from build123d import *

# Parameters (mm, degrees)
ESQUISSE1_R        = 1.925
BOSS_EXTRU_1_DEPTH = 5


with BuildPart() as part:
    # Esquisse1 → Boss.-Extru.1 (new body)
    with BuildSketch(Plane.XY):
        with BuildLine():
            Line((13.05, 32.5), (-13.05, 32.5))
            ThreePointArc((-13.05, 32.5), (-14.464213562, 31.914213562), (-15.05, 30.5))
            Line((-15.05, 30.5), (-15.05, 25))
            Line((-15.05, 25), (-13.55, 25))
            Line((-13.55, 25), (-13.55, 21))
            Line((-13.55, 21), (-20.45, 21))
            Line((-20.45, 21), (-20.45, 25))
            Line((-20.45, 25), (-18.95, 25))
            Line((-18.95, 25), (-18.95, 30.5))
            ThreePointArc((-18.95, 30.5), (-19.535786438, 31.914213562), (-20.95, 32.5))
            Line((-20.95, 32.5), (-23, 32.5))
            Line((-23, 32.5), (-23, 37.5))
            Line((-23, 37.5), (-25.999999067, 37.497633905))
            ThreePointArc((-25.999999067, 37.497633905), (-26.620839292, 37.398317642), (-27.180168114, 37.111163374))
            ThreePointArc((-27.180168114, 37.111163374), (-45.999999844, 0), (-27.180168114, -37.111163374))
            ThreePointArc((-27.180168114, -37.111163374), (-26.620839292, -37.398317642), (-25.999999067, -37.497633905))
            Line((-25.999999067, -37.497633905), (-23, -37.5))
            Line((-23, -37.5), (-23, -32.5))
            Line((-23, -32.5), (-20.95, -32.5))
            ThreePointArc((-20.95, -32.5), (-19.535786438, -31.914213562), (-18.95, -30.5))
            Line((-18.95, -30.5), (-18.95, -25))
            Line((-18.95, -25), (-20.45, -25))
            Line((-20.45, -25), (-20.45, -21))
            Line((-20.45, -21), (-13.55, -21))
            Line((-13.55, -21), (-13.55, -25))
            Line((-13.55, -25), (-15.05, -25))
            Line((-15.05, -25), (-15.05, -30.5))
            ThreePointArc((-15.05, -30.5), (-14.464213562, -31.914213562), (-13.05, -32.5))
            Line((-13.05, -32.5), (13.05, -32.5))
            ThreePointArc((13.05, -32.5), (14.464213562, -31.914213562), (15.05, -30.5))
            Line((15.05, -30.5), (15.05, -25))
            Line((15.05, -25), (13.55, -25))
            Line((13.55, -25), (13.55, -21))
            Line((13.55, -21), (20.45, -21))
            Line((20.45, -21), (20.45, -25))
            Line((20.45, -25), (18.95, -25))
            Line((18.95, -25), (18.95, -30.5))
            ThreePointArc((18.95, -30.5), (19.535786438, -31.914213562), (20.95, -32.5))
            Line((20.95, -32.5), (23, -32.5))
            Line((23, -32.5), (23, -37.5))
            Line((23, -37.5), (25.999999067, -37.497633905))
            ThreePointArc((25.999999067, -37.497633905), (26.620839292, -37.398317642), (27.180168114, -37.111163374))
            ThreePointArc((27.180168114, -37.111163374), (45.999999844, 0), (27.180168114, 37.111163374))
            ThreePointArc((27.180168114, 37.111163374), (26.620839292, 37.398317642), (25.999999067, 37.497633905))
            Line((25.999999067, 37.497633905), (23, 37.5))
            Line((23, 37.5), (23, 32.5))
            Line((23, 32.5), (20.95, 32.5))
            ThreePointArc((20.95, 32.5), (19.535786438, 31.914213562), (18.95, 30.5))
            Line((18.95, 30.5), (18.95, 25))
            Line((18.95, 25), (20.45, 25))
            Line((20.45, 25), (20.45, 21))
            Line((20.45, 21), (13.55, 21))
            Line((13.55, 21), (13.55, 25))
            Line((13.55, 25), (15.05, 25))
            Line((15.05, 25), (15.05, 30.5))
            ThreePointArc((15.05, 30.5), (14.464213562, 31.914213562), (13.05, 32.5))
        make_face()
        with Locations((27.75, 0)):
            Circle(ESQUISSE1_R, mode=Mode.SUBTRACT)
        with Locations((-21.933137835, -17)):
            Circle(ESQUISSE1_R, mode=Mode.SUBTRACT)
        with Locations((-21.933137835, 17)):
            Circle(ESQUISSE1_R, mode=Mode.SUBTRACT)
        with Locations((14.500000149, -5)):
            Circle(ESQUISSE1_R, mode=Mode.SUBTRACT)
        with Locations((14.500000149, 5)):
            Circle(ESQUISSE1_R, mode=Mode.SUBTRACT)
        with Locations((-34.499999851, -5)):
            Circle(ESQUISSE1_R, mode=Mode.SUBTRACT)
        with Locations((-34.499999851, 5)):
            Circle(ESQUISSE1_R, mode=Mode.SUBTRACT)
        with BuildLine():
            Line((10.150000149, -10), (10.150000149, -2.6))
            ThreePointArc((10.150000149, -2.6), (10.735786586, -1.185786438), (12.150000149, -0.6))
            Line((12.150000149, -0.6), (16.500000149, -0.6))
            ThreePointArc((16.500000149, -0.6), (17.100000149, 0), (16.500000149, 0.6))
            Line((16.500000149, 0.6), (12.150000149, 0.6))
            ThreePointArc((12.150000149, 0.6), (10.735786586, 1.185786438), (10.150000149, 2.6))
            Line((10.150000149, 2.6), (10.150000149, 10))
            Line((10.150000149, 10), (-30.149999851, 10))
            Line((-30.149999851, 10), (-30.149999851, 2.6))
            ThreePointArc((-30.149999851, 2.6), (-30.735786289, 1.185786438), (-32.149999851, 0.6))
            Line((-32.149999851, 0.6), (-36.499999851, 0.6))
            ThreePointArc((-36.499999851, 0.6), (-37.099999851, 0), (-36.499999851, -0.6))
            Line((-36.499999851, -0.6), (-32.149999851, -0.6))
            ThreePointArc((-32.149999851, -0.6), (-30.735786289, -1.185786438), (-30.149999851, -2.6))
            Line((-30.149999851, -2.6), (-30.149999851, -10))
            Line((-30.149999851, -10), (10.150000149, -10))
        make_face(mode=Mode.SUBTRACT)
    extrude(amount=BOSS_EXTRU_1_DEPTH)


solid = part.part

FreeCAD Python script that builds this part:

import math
import FreeCAD as App
import Part
import Sketcher

V = App.Vector

doc = App.newDocument("Part")
body = doc.addObject("PartDesign::Body", "Body")

# Sketch on XY plane
sketch1 = body.newObject("Sketcher::SketchObject", "Sketch")
sketch1.AttachmentSupport = (doc.getObject("XY_Plane"), [""])
sketch1.MapMode = "FlatFace"
sketch1.addGeometry([
    Part.LineSegment(V(13.1, 32.5, 0), V(-13.1, 32.5, 0)),  # 0
    Part.ArcOfCircle(Part.Circle(V(-13, 30.5, 0), V(0, 0, 1), 2), math.radians(90), math.radians(180)),  # 1
    Part.LineSegment(V(-15.1, 30.5, 0), V(-15.1, 25, 0)),  # 2
    Part.LineSegment(V(-15.1, 25, 0), V(-13.6, 25, 0)),  # 3
    Part.LineSegment(V(-13.6, 25, 0), V(-13.6, 21, 0)),  # 4
    Part.LineSegment(V(-13.6, 21, 0), V(-20.4, 21, 0)),  # 5
    Part.LineSegment(V(-20.4, 21, 0), V(-20.4, 25, 0)),  # 6
    Part.LineSegment(V(-20.4, 25, 0), V(-18.9, 25, 0)),  # 7
    Part.LineSegment(V(-18.9, 25, 0), V(-18.9, 30.5, 0)),  # 8
    Part.ArcOfCircle(Part.Circle(V(-21, 30.5, 0), V(0, 0, 1), 2), math.radians(0), math.radians(90)),  # 9
    Part.LineSegment(V(-20.9, 32.5, 0), V(-23, 32.5, 0)),  # 10
    Part.LineSegment(V(-23, 32.5, 0), V(-23, 37.5, 0)),  # 11
    Part.LineSegment(V(-23, 37.5, 0), V(-26, 37.5, 0)),  # 12
    Part.ArcOfCircle(Part.Circle(V(-26, 35.5, 0), V(0, 0, 1), 2), math.radians(90), math.radians(126)),  # 13
    Part.ArcOfCircle(Part.Circle(V(0, 0, 0), V(0, 0, 1), 46), math.radians(126), math.radians(234)),  # 14
    Part.ArcOfCircle(Part.Circle(V(-26, -35.5, 0), V(0, 0, 1), 2), math.radians(-126), math.radians(-90)),  # 15
    Part.LineSegment(V(-26, -37.5, 0), V(-23, -37.5, 0)),  # 16
    Part.LineSegment(V(-23, -37.5, 0), V(-23, -32.5, 0)),  # 17
    Part.LineSegment(V(-23, -32.5, 0), V(-20.9, -32.5, 0)),  # 18
    Part.ArcOfCircle(Part.Circle(V(-21, -30.5, 0), V(0, 0, 1), 2), math.radians(-90), math.radians(0)),  # 19
    Part.LineSegment(V(-18.9, -30.5, 0), V(-18.9, -25, 0)),  # 20
    Part.LineSegment(V(-18.9, -25, 0), V(-20.4, -25, 0)),  # 21
    Part.LineSegment(V(-20.4, -25, 0), V(-20.4, -21, 0)),  # 22
    Part.LineSegment(V(-20.4, -21, 0), V(-13.6, -21, 0)),  # 23
    Part.LineSegment(V(-13.6, -21, 0), V(-13.6, -25, 0)),  # 24
    Part.LineSegment(V(-13.6, -25, 0), V(-15.1, -25, 0)),  # 25
    Part.LineSegment(V(-15.1, -25, 0), V(-15.1, -30.5, 0)),  # 26
    Part.ArcOfCircle(Part.Circle(V(-13, -30.5, 0), V(0, 0, 1), 2), math.radians(-180), math.radians(-90)),  # 27
    Part.LineSegment(V(-13.1, -32.5, 0), V(13.1, -32.5, 0)),  # 28
    Part.ArcOfCircle(Part.Circle(V(13, -30.5, 0), V(0, 0, 1), 2), math.radians(-90), math.radians(0)),  # 29
    Part.LineSegment(V(15.1, -30.5, 0), V(15.1, -25, 0)),  # 30
    Part.LineSegment(V(15.1, -25, 0), V(13.6, -25, 0)),  # 31
    Part.LineSegment(V(13.6, -25, 0), V(13.6, -21, 0)),  # 32
    Part.LineSegment(V(13.6, -21, 0), V(20.4, -21, 0)),  # 33
    Part.LineSegment(V(20.4, -21, 0), V(20.4, -25, 0)),  # 34
    Part.LineSegment(V(20.4, -25, 0), V(18.9, -25, 0)),  # 35
    Part.LineSegment(V(18.9, -25, 0), V(18.9, -30.5, 0)),  # 36
    Part.ArcOfCircle(Part.Circle(V(21, -30.5, 0), V(0, 0, 1), 2), math.radians(-180), math.radians(-90)),  # 37
    Part.LineSegment(V(20.9, -32.5, 0), V(23, -32.5, 0)),  # 38
    Part.LineSegment(V(23, -32.5, 0), V(23, -37.5, 0)),  # 39
    Part.LineSegment(V(23, -37.5, 0), V(26, -37.5, 0)),  # 40
    Part.ArcOfCircle(Part.Circle(V(26, -35.5, 0), V(0, 0, 1), 2), math.radians(-90), math.radians(-54)),  # 41
    Part.ArcOfCircle(Part.Circle(V(0, 0, 0), V(0, 0, 1), 46), math.radians(-54), math.radians(54)),  # 42
    Part.ArcOfCircle(Part.Circle(V(26, 35.5, 0), V(0, 0, 1), 2), math.radians(54), math.radians(90)),  # 43
    Part.LineSegment(V(26, 37.5, 0), V(23, 37.5, 0)),  # 44
    Part.LineSegment(V(23, 37.5, 0), V(23, 32.5, 0)),  # 45
    Part.LineSegment(V(23, 32.5, 0), V(20.9, 32.5, 0)),  # 46
    Part.ArcOfCircle(Part.Circle(V(21, 30.5, 0), V(0, 0, 1), 2), math.radians(90), math.radians(180)),  # 47
    Part.LineSegment(V(18.9, 30.5, 0), V(18.9, 25, 0)),  # 48
    Part.LineSegment(V(18.9, 25, 0), V(20.4, 25, 0)),  # 49
    Part.LineSegment(V(20.4, 25, 0), V(20.4, 21, 0)),  # 50
    Part.LineSegment(V(20.4, 21, 0), V(13.6, 21, 0)),  # 51
    Part.LineSegment(V(13.6, 21, 0), V(13.6, 25, 0)),  # 52
    Part.LineSegment(V(13.6, 25, 0), V(15.1, 25, 0)),  # 53
    Part.LineSegment(V(15.1, 25, 0), V(15.1, 30.5, 0)),  # 54
    Part.ArcOfCircle(Part.Circle(V(13, 30.5, 0), V(0, 0, 1), 2), math.radians(0), math.radians(90)),  # 55
    Part.Circle(V(-21.9, -17, 0), V(0, 0, 1), 1.9),  # 56
    Part.Circle(V(-34.5, -5, 0), V(0, 0, 1), 1.9),  # 57
    Part.Circle(V(14.5, -5, 0), V(0, 0, 1), 1.9),  # 58
    Part.Circle(V(-34.5, 5, 0), V(0, 0, 1), 1.9),  # 59
    Part.LineSegment(V(10.2, -2.6, 0), V(10.2, -10, 0)),  # 60
    Part.LineSegment(V(10.2, -10, 0), V(-30.1, -10, 0)),  # 61
    Part.LineSegment(V(-30.1, -10, 0), V(-30.1, -2.6, 0)),  # 62
    Part.ArcOfCircle(Part.Circle(V(-32.1, -2.6, 0), V(0, 0, 1), 2), math.radians(0), math.radians(90)),  # 63
    Part.LineSegment(V(-32.1, -0.6, 0), V(-36.5, -0.6, 0)),  # 64
    Part.ArcOfCircle(Part.Circle(V(-36.5, 0, 0), V(0, 0, 1), 0.6), math.radians(90), math.radians(270)),  # 65
    Part.LineSegment(V(-36.5, 0.6, 0), V(-32.1, 0.6, 0)),  # 66
    Part.ArcOfCircle(Part.Circle(V(-32.1, 2.6, 0), V(0, 0, 1), 2), math.radians(-90), math.radians(0)),  # 67
    Part.LineSegment(V(-30.1, 2.6, 0), V(-30.1, 10, 0)),  # 68
    Part.LineSegment(V(-30.1, 10, 0), V(10.2, 10, 0)),  # 69
    Part.LineSegment(V(10.2, 10, 0), V(10.2, 2.6, 0)),  # 70
    Part.ArcOfCircle(Part.Circle(V(12.2, 2.6, 0), V(0, 0, 1), 2), math.radians(180), math.radians(270)),  # 71
    Part.LineSegment(V(12.2, 0.6, 0), V(16.5, 0.6, 0)),  # 72
    Part.ArcOfCircle(Part.Circle(V(16.5, 0, 0), V(0, 0, 1), 0.6), math.radians(-90), math.radians(90)),  # 73
    Part.LineSegment(V(16.5, -0.6, 0), V(12.2, -0.6, 0)),  # 74
    Part.ArcOfCircle(Part.Circle(V(12.2, -2.6, 0), V(0, 0, 1), 2), math.radians(90), math.radians(180)),  # 75
    Part.Circle(V(-21.9, 17, 0), V(0, 0, 1), 1.9),  # 76
    Part.Circle(V(27.8, 0, 0), V(0, 0, 1), 1.9),  # 77
    Part.Circle(V(14.5, 5, 0), V(0, 0, 1), 1.9),  # 78
], False)
sketch1.addConstraint([
    Sketcher.Constraint("Tangent", 0, 2, 1, 1),
    Sketcher.Constraint("Tangent", 1, 2, 2, 1),
    Sketcher.Constraint("Coincident", 2, 2, 3, 1),
    Sketcher.Constraint("Coincident", 3, 2, 4, 1),
    Sketcher.Constraint("Coincident", 4, 2, 5, 1),
    Sketcher.Constraint("Coincident", 5, 2, 6, 1),
    Sketcher.Constraint("Coincident", 6, 2, 7, 1),
    Sketcher.Constraint("Coincident", 7, 2, 8, 1),
    Sketcher.Constraint("Tangent", 8, 2, 9, 1),
    Sketcher.Constraint("Tangent", 9, 2, 10, 1),
    Sketcher.Constraint("Coincident", 10, 2, 11, 1),
    Sketcher.Constraint("Coincident", 11, 2, 12, 1),
    Sketcher.Constraint("Tangent", 12, 2, 13, 1),
    Sketcher.Constraint("Tangent", 13, 2, 14, 1),
    Sketcher.Constraint("Tangent", 14, 2, 15, 1),
    Sketcher.Constraint("Tangent", 15, 2, 16, 1),
    Sketcher.Constraint("Coincident", 16, 2, 17, 1),
    Sketcher.Constraint("Coincident", 17, 2, 18, 1),
    Sketcher.Constraint("Tangent", 18, 2, 19, 1),
    Sketcher.Constraint("Tangent", 19, 2, 20, 1),
    Sketcher.Constraint("Coincident", 20, 2, 21, 1),
    Sketcher.Constraint("Coincident", 21, 2, 22, 1),
    Sketcher.Constraint("Coincident", 22, 2, 23, 1),
    Sketcher.Constraint("Coincident", 23, 2, 24, 1),
    Sketcher.Constraint("Coincident", 24, 2, 25, 1),
    Sketcher.Constraint("Coincident", 25, 2, 26, 1),
    Sketcher.Constraint("Tangent", 26, 2, 27, 1),
    Sketcher.Constraint("Tangent", 27, 2, 28, 1),
    Sketcher.Constraint("Tangent", 28, 2, 29, 1),
    Sketcher.Constraint("Tangent", 29, 2, 30, 1),
    Sketcher.Constraint("Coincident", 30, 2, 31, 1),
    Sketcher.Constraint("Coincident", 31, 2, 32, 1),
    Sketcher.Constraint("Coincident", 32, 2, 33, 1),
    Sketcher.Constraint("Coincident", 33, 2, 34, 1),
    Sketcher.Constraint("Coincident", 34, 2, 35, 1),
    Sketcher.Constraint("Coincident", 35, 2, 36, 1),
    Sketcher.Constraint("Tangent", 36, 2, 37, 1),
    Sketcher.Constraint("Tangent", 37, 2, 38, 1),
    Sketcher.Constraint("Coincident", 38, 2, 39, 1),
    Sketcher.Constraint("Coincident", 39, 2, 40, 1),
    Sketcher.Constraint("Tangent", 40, 2, 41, 1),
    Sketcher.Constraint("Tangent", 41, 2, 42, 1),
    Sketcher.Constraint("Tangent", 42, 2, 43, 1),
    Sketcher.Constraint("Tangent", 43, 2, 44, 1),
    Sketcher.Constraint("Coincident", 44, 2, 45, 1),
    Sketcher.Constraint("Coincident", 45, 2, 46, 1),
    Sketcher.Constraint("Tangent", 46, 2, 47, 1),
    Sketcher.Constraint("Tangent", 47, 2, 48, 1),
    Sketcher.Constraint("Coincident", 48, 2, 49, 1),
    Sketcher.Constraint("Coincident", 49, 2, 50, 1),
    Sketcher.Constraint("Coincident", 50, 2, 51, 1),
    Sketcher.Constraint("Coincident", 51, 2, 52, 1),
    Sketcher.Constraint("Coincident", 52, 2, 53, 1),
    Sketcher.Constraint("Coincident", 53, 2, 54, 1),
    Sketcher.Constraint("Tangent", 54, 2, 55, 1),
    Sketcher.Constraint("Tangent", 55, 2, 0, 1),
    Sketcher.Constraint("Coincident", 60, 2, 61, 1),
    Sketcher.Constraint("Coincident", 61, 2, 62, 1),
    Sketcher.Constraint("Tangent", 62, 2, 63, 1),
    Sketcher.Constraint("Tangent", 63, 2, 64, 1),
    Sketcher.Constraint("Tangent", 64, 2, 65, 2),
    Sketcher.Constraint("Tangent", 65, 1, 66, 1),
    Sketcher.Constraint("Tangent", 66, 2, 67, 1),
    Sketcher.Constraint("Tangent", 67, 2, 68, 1),
    Sketcher.Constraint("Coincident", 68, 2, 69, 1),
    Sketcher.Constraint("Coincident", 69, 2, 70, 1),
    Sketcher.Constraint("Tangent", 70, 2, 71, 1),
    Sketcher.Constraint("Tangent", 71, 2, 72, 1),
    Sketcher.Constraint("Tangent", 72, 2, 73, 2),
    Sketcher.Constraint("Tangent", 73, 1, 74, 1),
    Sketcher.Constraint("Tangent", 74, 2, 75, 1),
    Sketcher.Constraint("Tangent", 75, 2, 60, 1),
    Sketcher.Constraint("Horizontal", 0),
    Sketcher.Constraint("Vertical", 2),
    Sketcher.Constraint("Horizontal", 3),
    Sketcher.Constraint("Vertical", 4),
    Sketcher.Constraint("Horizontal", 5),
    Sketcher.Constraint("Vertical", 6),
    Sketcher.Constraint("Horizontal", 7),
    Sketcher.Constraint("Vertical", 8),
    Sketcher.Constraint("Horizontal", 10),
    Sketcher.Constraint("Vertical", 11),
    Sketcher.Constraint("Vertical", 17),
    Sketcher.Constraint("Horizontal", 18),
    Sketcher.Constraint("Vertical", 20),
    Sketcher.Constraint("Horizontal", 21),
    Sketcher.Constraint("Vertical", 22),
    Sketcher.Constraint("Horizontal", 23),
    Sketcher.Constraint("Vertical", 24),
    Sketcher.Constraint("Horizontal", 25),
    Sketcher.Constraint("Vertical", 26),
    Sketcher.Constraint("Horizontal", 28),
    Sketcher.Constraint("Vertical", 30),
    Sketcher.Constraint("Horizontal", 31),
    Sketcher.Constraint("Vertical", 32),
    Sketcher.Constraint("Horizontal", 33),
    Sketcher.Constraint("Vertical", 34),
    Sketcher.Constraint("Horizontal", 35),
    Sketcher.Constraint("Vertical", 36),
    Sketcher.Constraint("Horizontal", 38),
    Sketcher.Constraint("Vertical", 39),
    Sketcher.Constraint("Vertical", 45),
    Sketcher.Constraint("Horizontal", 46),
    Sketcher.Constraint("Vertical", 48),
    Sketcher.Constraint("Horizontal", 49),
    Sketcher.Constraint("Vertical", 50),
    Sketcher.Constraint("Horizontal", 51),
    Sketcher.Constraint("Vertical", 52),
    Sketcher.Constraint("Horizontal", 53),
    Sketcher.Constraint("Vertical", 54),
    Sketcher.Constraint("Vertical", 60),
    Sketcher.Constraint("Horizontal", 61),
    Sketcher.Constraint("Vertical", 62),
    Sketcher.Constraint("Horizontal", 64),
    Sketcher.Constraint("Horizontal", 66),
    Sketcher.Constraint("Vertical", 68),
    Sketcher.Constraint("Horizontal", 69),
    Sketcher.Constraint("Vertical", 70),
    Sketcher.Constraint("Horizontal", 72),
    Sketcher.Constraint("Horizontal", 74),
    Sketcher.Constraint("Coincident", 14, 3, -1, 1),
    Sketcher.Constraint("Coincident", 42, 3, -1, 1),
    Sketcher.Constraint("Equal", 1, 9),
    Sketcher.Constraint("Equal", 9, 13),
    Sketcher.Constraint("Equal", 13, 15),
    Sketcher.Constraint("Equal", 15, 19),
    Sketcher.Constraint("Equal", 19, 27),
    Sketcher.Constraint("Equal", 27, 29),
    Sketcher.Constraint("Equal", 29, 37),
    Sketcher.Constraint("Equal", 37, 41),
    Sketcher.Constraint("Equal", 14, 42),
    Sketcher.Constraint("Equal", 41, 43),
    Sketcher.Constraint("Equal", 43, 47),
    Sketcher.Constraint("Equal", 47, 55),
    Sketcher.Constraint("Equal", 56, 57),
    Sketcher.Constraint("Equal", 57, 58),
    Sketcher.Constraint("Equal", 58, 59),
    Sketcher.Constraint("Equal", 55, 63),
    Sketcher.Constraint("Equal", 63, 67),
    Sketcher.Constraint("Equal", 67, 71),
    Sketcher.Constraint("Equal", 65, 73),
    Sketcher.Constraint("Equal", 71, 75),
    Sketcher.Constraint("Equal", 59, 76),
    Sketcher.Constraint("Equal", 76, 77),
    Sketcher.Constraint("Equal", 77, 78),
    Sketcher.Constraint("Symmetric", 1, 3, 29, 3, -1, 1),
    Sketcher.Constraint("Symmetric", 9, 3, 37, 3, -1, 1),
    Sketcher.Constraint("Symmetric", 19, 3, 47, 3, -1, 1),
    Sketcher.Constraint("Symmetric", 3, 2, 31, 2, -1, 1),
    Sketcher.Constraint("Symmetric", 5, 2, 33, 2, -1, 1),
    Sketcher.Constraint("Symmetric", 11, 2, 39, 2, -1, 1),
    Sketcher.Constraint("Symmetric", 15, 2, 43, 2, -1, 1),
    Sketcher.Constraint("Symmetric", 21, 2, 49, 2, -1, 1),
    Sketcher.Constraint("Symmetric", 23, 2, 51, 2, -1, 1),
    Sketcher.Constraint("Symmetric", 25, 2, 53, 2, -1, 1),
    Sketcher.Constraint("Symmetric", 19, 3, 37, 3, -2),
    Sketcher.Constraint("Symmetric", 25, 2, 30, 2, -2),
    Sketcher.Constraint("Symmetric", 23, 2, 32, 2, -2),
    Sketcher.Constraint("Symmetric", 21, 2, 34, 2, -2),
    Sketcher.Constraint("Symmetric", 16, 2, 39, 2, -2),
    Sketcher.Constraint("Symmetric", 57, 3, 59, 3, -1),
    Sketcher.Constraint("Symmetric", 63, 3, 67, 3, -1),
    Sketcher.Constraint("Symmetric", 71, 3, 75, 3, -1),
    Sketcher.Constraint("Symmetric", 56, 3, 76, 3, -1),
    Sketcher.Constraint("Symmetric", 58, 3, 78, 3, -1),
    Sketcher.Constraint("PointOnObject", 77, 3, -1),
    Sketcher.Constraint("Parallel", 12, 40),
    Sketcher.Constraint("Horizontal", 1, 3, 9, 3),
    Sketcher.Constraint("Horizontal", 15, 3, 41, 3),
    Sketcher.Constraint("Horizontal", 57, 3, 58, 3),
    Sketcher.Constraint("Horizontal", 3, 2, 6, 2),
    Sketcher.Constraint("Horizontal", 21, 2, 24, 2),
    Sketcher.Constraint("Vertical", 39, 2, 44, 2),
    Sketcher.Constraint("Equal", 3, 7),
    Sketcher.Constraint("Equal", 66, 72),
    Sketcher.Constraint("Equal", 62, 68),
    Sketcher.Constraint("Radius", 1, 2.0),
    Sketcher.Constraint("Radius", 14, 46.0),
    Sketcher.Constraint("Radius", 65, 0.6),
    Sketcher.Constraint("Diameter", 56, 3.85),
    Sketcher.Constraint("DistanceY", 4, 2, 4, 1, 4.0),
    Sketcher.Constraint("DistanceY", 11, 1, 11, 2, 5.0),
    Sketcher.Constraint("Distance", 12, 3.0),
    Sketcher.Constraint("DistanceX", 0, 2, 0, 1, 26.1),
    Sketcher.Constraint("DistanceX", 3, 1, 3, 2, 1.5),
    Sketcher.Constraint("DistanceX", 5, 2, 5, 1, 6.9),
    Sketcher.Constraint("DistanceX", 61, 2, 61, 1, 40.3),
    Sketcher.Constraint("DistanceY", 2, 2, 2, 1, 5.5),
    Sketcher.Constraint("DistanceY", 60, 2, 60, 1, 7.4),
    Sketcher.Constraint("DistanceY", 56, 3, -1, 1, 17.0),
    Sketcher.Constraint("DistanceY", 57, 3, -1, 1, 5.0),
    Sketcher.Constraint("DistanceY", -1, 1, 2, 2, 25.0),
    Sketcher.Constraint("DistanceX", 10, 2, -1, 1, 23.0),
    Sketcher.Constraint("DistanceX", 64, 2, 64, 1, 4.35),
    Sketcher.Constraint("DistanceX", 57, 3, -1, 1, 34.5),
    Sketcher.Constraint("DistanceX", -1, 1, 58, 3, 14.5),
    Sketcher.Constraint("DistanceX", 65, 3, -1, 1, 36.5),
    Sketcher.Constraint("DistanceX", -1, 1, 77, 3, 27.75),
    Sketcher.Constraint("DistanceX", 56, 3, -1, 1, 21.933138),
])
pad1 = body.newObject("PartDesign::Pad", "Pad")
pad1.Profile = sketch1
pad1.Length = 5

doc.recompute()
